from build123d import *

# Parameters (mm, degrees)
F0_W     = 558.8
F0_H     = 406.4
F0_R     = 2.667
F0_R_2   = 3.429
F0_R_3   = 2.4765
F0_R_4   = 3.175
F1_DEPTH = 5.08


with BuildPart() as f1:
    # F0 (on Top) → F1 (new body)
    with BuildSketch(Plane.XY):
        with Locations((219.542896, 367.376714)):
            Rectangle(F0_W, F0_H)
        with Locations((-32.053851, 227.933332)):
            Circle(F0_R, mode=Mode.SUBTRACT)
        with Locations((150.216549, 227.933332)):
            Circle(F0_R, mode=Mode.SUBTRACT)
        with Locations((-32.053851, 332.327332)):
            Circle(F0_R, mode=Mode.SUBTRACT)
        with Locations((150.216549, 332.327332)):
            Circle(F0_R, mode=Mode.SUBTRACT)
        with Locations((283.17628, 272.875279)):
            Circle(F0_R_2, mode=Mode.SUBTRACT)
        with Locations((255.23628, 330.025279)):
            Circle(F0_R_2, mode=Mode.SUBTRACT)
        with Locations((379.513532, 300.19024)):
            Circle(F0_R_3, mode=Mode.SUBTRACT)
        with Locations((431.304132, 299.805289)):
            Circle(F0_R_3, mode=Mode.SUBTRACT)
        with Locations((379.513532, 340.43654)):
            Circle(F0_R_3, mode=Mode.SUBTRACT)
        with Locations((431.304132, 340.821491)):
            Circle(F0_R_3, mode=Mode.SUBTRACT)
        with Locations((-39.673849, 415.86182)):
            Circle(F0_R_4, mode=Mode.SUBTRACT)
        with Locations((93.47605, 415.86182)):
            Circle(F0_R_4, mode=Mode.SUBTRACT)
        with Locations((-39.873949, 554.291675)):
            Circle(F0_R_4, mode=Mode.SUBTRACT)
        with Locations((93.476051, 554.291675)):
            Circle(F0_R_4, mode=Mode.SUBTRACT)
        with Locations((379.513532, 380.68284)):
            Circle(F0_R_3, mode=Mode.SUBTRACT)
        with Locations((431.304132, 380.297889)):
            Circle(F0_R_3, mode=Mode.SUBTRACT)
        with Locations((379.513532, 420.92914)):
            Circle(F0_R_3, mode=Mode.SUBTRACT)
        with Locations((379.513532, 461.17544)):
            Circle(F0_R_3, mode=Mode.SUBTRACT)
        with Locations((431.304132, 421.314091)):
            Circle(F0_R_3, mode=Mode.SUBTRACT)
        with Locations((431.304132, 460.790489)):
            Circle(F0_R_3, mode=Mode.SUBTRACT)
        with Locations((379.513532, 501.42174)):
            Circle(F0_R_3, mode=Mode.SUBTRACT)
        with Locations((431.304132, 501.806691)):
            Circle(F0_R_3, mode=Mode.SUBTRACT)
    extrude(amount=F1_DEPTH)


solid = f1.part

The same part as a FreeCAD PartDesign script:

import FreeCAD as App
import Part
import Sketcher
from FreeCAD import Vector
Q = App.Units.Quantity

doc = App.newDocument("Part")
body = doc.addObject("PartDesign::Body", "Body")

# Sketch on XY plane
sketch1 = doc.addObject("Sketcher::SketchObject", "Sketch")
body.addObject(sketch1)
sketch1.AttachmentSupport = (doc.XY_Plane, [""])
sketch1.MapMode = "FlatFace"
sketch1.addGeometry(Part.LineSegment(Vector(-59.857104, 570.576714, 0), Vector(-59.857104, 164.176714, 0)), False)
sketch1.addGeometry(Part.LineSegment(Vector(-59.857104, 164.176714, 0), Vector(498.942896, 164.176714, 0)), False)
sketch1.addGeometry(Part.LineSegment(Vector(498.942896, 164.176714, 0), Vector(498.942896, 570.576714, 0)), False)
sketch1.addGeometry(Part.LineSegment(Vector(498.942896, 570.576714, 0), Vector(-59.857104, 570.576714, 0)), False)
sketch1.addGeometry(Part.Circle(Vector(-32.053851, 227.933332, 0), Vector(0, 0, 1), 2.667), False)
sketch1.addGeometry(Part.Circle(Vector(150.216549, 227.933332, 0), Vector(0, 0, 1), 2.667), False)
sketch1.addGeometry(Part.Circle(Vector(-32.053851, 332.327332, 0), Vector(0, 0, 1), 2.667), False)
sketch1.addGeometry(Part.Circle(Vector(150.216549, 332.327332, 0), Vector(0, 0, 1), 2.667), False)
sketch1.addGeometry(Part.Circle(Vector(283.17628, 272.875279, 0), Vector(0, 0, 1), 3.429), False)
sketch1.addGeometry(Part.Circle(Vector(379.513532, 300.19024, 0), Vector(0, 0, 1), 2.4765), False)
sketch1.addGeometry(Part.Circle(Vector(431.304132, 299.805289, 0), Vector(0, 0, 1), 2.4765), False)
sketch1.addGeometry(Part.Circle(Vector(255.23628, 330.025279, 0), Vector(0, 0, 1), 3.429), False)
sketch1.addGeometry(Part.Circle(Vector(379.513532, 340.43654, 0), Vector(0, 0, 1), 2.4765), False)
sketch1.addGeometry(Part.Circle(Vector(431.304132, 340.821491, 0), Vector(0, 0, 1), 2.4765), False)
sketch1.addGeometry(Part.Circle(Vector(379.513532, 380.68284, 0), Vector(0, 0, 1), 2.4765), False)
sketch1.addGeometry(Part.Circle(Vector(431.304132, 380.297889, 0), Vector(0, 0, 1), 2.4765), False)
sketch1.addGeometry(Part.Circle(Vector(-39.673849, 415.86182, 0), Vector(0, 0, 1), 3.175), False)
sketch1.addGeometry(Part.Circle(Vector(93.47605, 415.86182, 0), Vector(0, 0, 1), 3.175), False)
sketch1.addGeometry(Part.Circle(Vector(-39.873949, 554.291675, 0), Vector(0, 0, 1), 3.175), False)
sketch1.addGeometry(Part.Circle(Vector(93.476051, 554.291675, 0), Vector(0, 0, 1), 3.175), False)
sketch1.addGeometry(Part.Circle(Vector(379.513532, 420.92914, 0), Vector(0, 0, 1), 2.4765), False)
sketch1.addGeometry(Part.Circle(Vector(431.304132, 421.314091, 0), Vector(0, 0, 1), 2.4765), False)
sketch1.addGeometry(Part.Circle(Vector(379.513532, 461.17544, 0), Vector(0, 0, 1), 2.4765), False)
sketch1.addGeometry(Part.Circle(Vector(431.304132, 460.790489, 0), Vector(0, 0, 1), 2.4765), False)
sketch1.addGeometry(Part.Circle(Vector(379.513532, 501.42174, 0), Vector(0, 0, 1), 2.4765), False)
sketch1.addGeometry(Part.Circle(Vector(431.304132, 501.806691, 0), Vector(0, 0, 1), 2.4765), False)
sketch1.addConstraint(Sketcher.Constraint("Coincident", 0, 2, 1, 1))
sketch1.addConstraint(Sketcher.Constraint("Coincident", 1, 2, 2, 1))
sketch1.addConstraint(Sketcher.Constraint("Coincident", 2, 2, 3, 1))
sketch1.addConstraint(Sketcher.Constraint("Coincident", 3, 2, 0, 1))
sketch1.addConstraint(Sketcher.Constraint("Vertical", 0))
sketch1.addConstraint(Sketcher.Constraint("Horizontal", 1))
sketch1.addConstraint(Sketcher.Constraint("Vertical", 2))
sketch1.addConstraint(Sketcher.Constraint("Horizontal", 3))
sketch1.addConstraint(Sketcher.Constraint("Equal", 4, 5))
sketch1.addConstraint(Sketcher.Constraint("Equal", 5, 6))
sketch1.addConstraint(Sketcher.Constraint("Equal", 6, 7))
sketch1.addConstraint(Sketcher.Constraint("Equal", 9, 10))
sketch1.addConstraint(Sketcher.Constraint("Equal", 8, 11))
sketch1.addConstraint(Sketcher.Constraint("Equal", 10, 12))
sketch1.addConstraint(Sketcher.Constraint("Equal", 12, 13))
sketch1.addConstraint(Sketcher.Constraint("Equal", 13, 14))
sketch1.addConstraint(Sketcher.Constraint("Equal", 14, 15))
sketch1.addConstraint(Sketcher.Constraint("Equal", 16, 17))
sketch1.addConstraint(Sketcher.Constraint("Equal", 17, 18))
sketch1.addConstraint(Sketcher.Constraint("Equal", 18, 19))
sketch1.addConstraint(Sketcher.Constraint("Equal", 15, 20))
sketch1.addConstraint(Sketcher.Constraint("Equal", 20, 21))
sketch1.addConstraint(Sketcher.Constraint("Equal", 21, 22))
sketch1.addConstraint(Sketcher.Constraint("Equal", 22, 23))
sketch1.addConstraint(Sketcher.Constraint("Equal", 23, 24))
sketch1.addConstraint(Sketcher.Constraint("Equal", 24, 25))
sketch1.addConstraint(Sketcher.Constraint("Horizontal", 4, 3, 5, 3))
sketch1.addConstraint(Sketcher.Constraint("Horizontal", 6, 3, 7, 3))
sketch1.addConstraint(Sketcher.Constraint("Horizontal", 16, 3, 17, 3))
sketch1.addConstraint(Sketcher.Constraint("Horizontal", 18, 3, 19, 3))
sketch1.addConstraint(Sketcher.Constraint("Vertical", 4, 3, 6, 3))
sketch1.addConstraint(Sketcher.Constraint("Vertical", 5, 3, 7, 3))
sketch1.addConstraint(Sketcher.Constraint("Vertical", 9, 3, 12, 3))
sketch1.addConstraint(Sketcher.Constraint("Vertical", 10, 3, 13, 3))
sketch1.addConstraint(Sketcher.Constraint("Vertical", 12, 3, 14, 3))
sketch1.addConstraint(Sketcher.Constraint("Vertical", 13, 3, 15, 3))
sketch1.addConstraint(Sketcher.Constraint("Vertical", 17, 3, 19, 3))
sketch1.addConstraint(Sketcher.Constraint("Vertical", 14, 3, 20, 3))
sketch1.addConstraint(Sketcher.Constraint("Vertical", 15, 3, 21, 3))
sketch1.addConstraint(Sketcher.Constraint("Vertical", 20, 3, 22, 3))
sketch1.addConstraint(Sketcher.Constraint("Vertical", 21, 3, 23, 3))
sketch1.addConstraint(Sketcher.Constraint("Vertical", 22, 3, 24, 3))
sketch1.addConstraint(Sketcher.Constraint("Vertical", 23, 3, 25, 3))
sketch1.addConstraint(Sketcher.Constraint("Diameter", 4, Q("0.21 in")))
sketch1.addConstraint(Sketcher.Constraint("Diameter", 8, Q("0.27 in")))
sketch1.addConstraint(Sketcher.Constraint("Diameter", 16, Q("0.25 in")))
sketch1.addConstraint(Sketcher.Constraint("DistanceX", 1, 1, 1, 2, Q("22 in")))
sketch1.addConstraint(Sketcher.Constraint("DistanceY", 0, 2, 0, 1, Q("16 in")))
sketch1.addConstraint(Sketcher.Constraint("Diameter", 9, Q("0.195 in")))
sketch1.addConstraint(Sketcher.Constraint("DistanceX", 11, 3, 8, 3, Q("1.1 in")))
sketch1.addConstraint(Sketcher.Constraint("DistanceX", 16, 3, 6, 3, Q("0.2999999 in")))
sketch1.addConstraint(Sketcher.Constraint("DistanceY", 4, 3, 6, 3, Q("4.11 in")))
sketch1.addConstraint(Sketcher.Constraint("DistanceY", 8, 3, 11, 3, Q("2.25 in")))
sketch1.addConstraint(Sketcher.Constraint("DistanceX", 18, 3, 17, 3, Q("5.25 in")))
sketch1.addConstraint(Sketcher.Constraint("DistanceX", 4, 3, 5, 3, Q("7.176 in")))
sketch1.addConstraint(Sketcher.Constraint("DistanceX", 9, 3, 10, 3, Q("2.039 in")))
sketch1.addConstraint(Sketcher.Constraint("DistanceY", 9, 3, 14, 3, Q("3.169 in")))
sketch1.addConstraint(Sketcher.Constraint("DistanceY", 10, 3, 15, 3, Q("3.169 in")))
sketch1.addConstraint(Sketcher.Constraint("DistanceY", 12, 3, 20, 3, Q("3.169 in")))
sketch1.addConstraint(Sketcher.Constraint("DistanceY", 13, 3, 21, 3, Q("3.169 in")))
sketch1.addConstraint(Sketcher.Constraint("DistanceY", 14, 3, 22, 3, Q("3.169 in")))
sketch1.addConstraint(Sketcher.Constraint("DistanceY", 15, 3, 23, 3, Q("3.169 in")))
sketch1.addConstraint(Sketcher.Constraint("DistanceY", 20, 3, 24, 3, Q("3.169 in")))
sketch1.addConstraint(Sketcher.Constraint("DistanceY", 21, 3, 25, 3, Q("3.169 in")))
sketch1.addConstraint(Sketcher.Constraint("DistanceY", 9, 3, 12, 3, Q("1.5845 in")))
sketch1.addConstraint(Sketcher.Constraint("DistanceY", 10, 3, 13, 3, Q("41.016202 mm")))
sketch1.addConstraint(Sketcher.Constraint("DistanceX", 17, 3, 7, 3, Q("56.740499 mm")))
sketch1.addConstraint(Sketcher.Constraint("DistanceX", 4, 3, -1, 1, Q("32.053851 mm")))
sketch1.addConstraint(Sketcher.Constraint("DistanceY", -1, 1, 4, 3, Q("227.933332 mm")))
sketch1.addConstraint(Sketcher.Constraint("DistanceX", -1, 1, 8, 3, Q("283.17628 mm")))
sketch1.addConstraint(Sketcher.Constraint("DistanceY", -1, 1, 8, 3, Q("272.875279 mm")))
sketch1.addConstraint(Sketcher.Constraint("DistanceX", -1, 1, 9, 3, Q("379.513532 mm")))
sketch1.addConstraint(Sketcher.Constraint("DistanceY", -1, 1, 9, 3, Q("300.19024 mm")))
sketch1.addConstraint(Sketcher.Constraint("DistanceY", -1, 1, 10, 3, Q("299.805289 mm")))
sketch1.addConstraint(Sketcher.Constraint("DistanceY", -1, 1, 16, 3, Q("415.86182 mm")))
sketch1.addConstraint(Sketcher.Constraint("DistanceY", 0, 2, 4, 3, Q("63.756618 mm")))
sketch1.addConstraint(Sketcher.Constraint("DistanceY", 18, 3, 3, 2, Q("16.285039 mm")))
sketch1.addConstraint(Sketcher.Constraint("DistanceX", 0, 2, -1, 1, Q("59.857104 mm")))
pad1 = doc.addObject("PartDesign::Pad", "Pad")
body.addObject(pad1)
pad1.Profile = sketch1
pad1.Length = Q("0.2 in")

doc.recompute()
